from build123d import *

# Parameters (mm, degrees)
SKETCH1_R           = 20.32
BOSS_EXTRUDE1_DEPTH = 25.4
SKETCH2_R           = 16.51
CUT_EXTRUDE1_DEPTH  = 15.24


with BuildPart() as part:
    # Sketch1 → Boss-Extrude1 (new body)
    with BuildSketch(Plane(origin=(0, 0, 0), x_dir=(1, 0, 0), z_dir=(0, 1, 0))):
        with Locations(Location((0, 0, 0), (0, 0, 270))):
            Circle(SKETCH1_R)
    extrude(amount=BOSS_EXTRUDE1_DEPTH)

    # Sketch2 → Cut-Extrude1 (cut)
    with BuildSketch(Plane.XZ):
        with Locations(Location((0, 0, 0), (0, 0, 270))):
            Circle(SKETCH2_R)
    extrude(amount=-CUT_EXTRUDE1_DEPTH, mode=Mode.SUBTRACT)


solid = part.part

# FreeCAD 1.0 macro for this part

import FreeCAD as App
import Part
import Sketcher

V = App.Vector
Q = App.Units.Quantity

doc = App.newDocument("Part")
body = doc.addObject("PartDesign::Body", "Body")

sketch1 = body.newObject("Sketcher::SketchObject", "Sketch")
sketch1.AttachmentSupport = (doc.getObject("XZ_Plane"), [""])
sketch1.MapMode = "FlatFace"
sketch1.addGeometry(Part.Circle(V(0, 0, 0), V(0, 0, 1), 20.32), False)
sketch1.addConstraint([
    Sketcher.Constraint("Coincident", 0, 3, -1, 1),
    Sketcher.Constraint("Diameter", 0, Q("1.6 in")),
])
pad1 = body.newObject("PartDesign::Pad", "Pad")
pad1.Profile = sketch1
pad1.Length = Q("1 in")
pad1.Reversed = True

sketch2 = body.newObject("Sketcher::SketchObject", "Sketch001")
sketch2.AttachmentSupport = (doc.getObject("XZ_Plane"), [""])
sketch2.MapMode = "FlatFace"
sketch2.addGeometry(Part.Circle(V(0, 0, 0), V(0, 0, 1), 16.51), False)
sketch2.addConstraint([
    Sketcher.Constraint("Coincident", 0, 3, -1, 1),
    Sketcher.Constraint("Diameter", 0, Q("1.3 in")),
])
pocket1 = body.newObject("PartDesign::Pocket", "Pocket")
pocket1.Profile = sketch2
pocket1.Length = Q("0.6 in")

doc.recompute()
